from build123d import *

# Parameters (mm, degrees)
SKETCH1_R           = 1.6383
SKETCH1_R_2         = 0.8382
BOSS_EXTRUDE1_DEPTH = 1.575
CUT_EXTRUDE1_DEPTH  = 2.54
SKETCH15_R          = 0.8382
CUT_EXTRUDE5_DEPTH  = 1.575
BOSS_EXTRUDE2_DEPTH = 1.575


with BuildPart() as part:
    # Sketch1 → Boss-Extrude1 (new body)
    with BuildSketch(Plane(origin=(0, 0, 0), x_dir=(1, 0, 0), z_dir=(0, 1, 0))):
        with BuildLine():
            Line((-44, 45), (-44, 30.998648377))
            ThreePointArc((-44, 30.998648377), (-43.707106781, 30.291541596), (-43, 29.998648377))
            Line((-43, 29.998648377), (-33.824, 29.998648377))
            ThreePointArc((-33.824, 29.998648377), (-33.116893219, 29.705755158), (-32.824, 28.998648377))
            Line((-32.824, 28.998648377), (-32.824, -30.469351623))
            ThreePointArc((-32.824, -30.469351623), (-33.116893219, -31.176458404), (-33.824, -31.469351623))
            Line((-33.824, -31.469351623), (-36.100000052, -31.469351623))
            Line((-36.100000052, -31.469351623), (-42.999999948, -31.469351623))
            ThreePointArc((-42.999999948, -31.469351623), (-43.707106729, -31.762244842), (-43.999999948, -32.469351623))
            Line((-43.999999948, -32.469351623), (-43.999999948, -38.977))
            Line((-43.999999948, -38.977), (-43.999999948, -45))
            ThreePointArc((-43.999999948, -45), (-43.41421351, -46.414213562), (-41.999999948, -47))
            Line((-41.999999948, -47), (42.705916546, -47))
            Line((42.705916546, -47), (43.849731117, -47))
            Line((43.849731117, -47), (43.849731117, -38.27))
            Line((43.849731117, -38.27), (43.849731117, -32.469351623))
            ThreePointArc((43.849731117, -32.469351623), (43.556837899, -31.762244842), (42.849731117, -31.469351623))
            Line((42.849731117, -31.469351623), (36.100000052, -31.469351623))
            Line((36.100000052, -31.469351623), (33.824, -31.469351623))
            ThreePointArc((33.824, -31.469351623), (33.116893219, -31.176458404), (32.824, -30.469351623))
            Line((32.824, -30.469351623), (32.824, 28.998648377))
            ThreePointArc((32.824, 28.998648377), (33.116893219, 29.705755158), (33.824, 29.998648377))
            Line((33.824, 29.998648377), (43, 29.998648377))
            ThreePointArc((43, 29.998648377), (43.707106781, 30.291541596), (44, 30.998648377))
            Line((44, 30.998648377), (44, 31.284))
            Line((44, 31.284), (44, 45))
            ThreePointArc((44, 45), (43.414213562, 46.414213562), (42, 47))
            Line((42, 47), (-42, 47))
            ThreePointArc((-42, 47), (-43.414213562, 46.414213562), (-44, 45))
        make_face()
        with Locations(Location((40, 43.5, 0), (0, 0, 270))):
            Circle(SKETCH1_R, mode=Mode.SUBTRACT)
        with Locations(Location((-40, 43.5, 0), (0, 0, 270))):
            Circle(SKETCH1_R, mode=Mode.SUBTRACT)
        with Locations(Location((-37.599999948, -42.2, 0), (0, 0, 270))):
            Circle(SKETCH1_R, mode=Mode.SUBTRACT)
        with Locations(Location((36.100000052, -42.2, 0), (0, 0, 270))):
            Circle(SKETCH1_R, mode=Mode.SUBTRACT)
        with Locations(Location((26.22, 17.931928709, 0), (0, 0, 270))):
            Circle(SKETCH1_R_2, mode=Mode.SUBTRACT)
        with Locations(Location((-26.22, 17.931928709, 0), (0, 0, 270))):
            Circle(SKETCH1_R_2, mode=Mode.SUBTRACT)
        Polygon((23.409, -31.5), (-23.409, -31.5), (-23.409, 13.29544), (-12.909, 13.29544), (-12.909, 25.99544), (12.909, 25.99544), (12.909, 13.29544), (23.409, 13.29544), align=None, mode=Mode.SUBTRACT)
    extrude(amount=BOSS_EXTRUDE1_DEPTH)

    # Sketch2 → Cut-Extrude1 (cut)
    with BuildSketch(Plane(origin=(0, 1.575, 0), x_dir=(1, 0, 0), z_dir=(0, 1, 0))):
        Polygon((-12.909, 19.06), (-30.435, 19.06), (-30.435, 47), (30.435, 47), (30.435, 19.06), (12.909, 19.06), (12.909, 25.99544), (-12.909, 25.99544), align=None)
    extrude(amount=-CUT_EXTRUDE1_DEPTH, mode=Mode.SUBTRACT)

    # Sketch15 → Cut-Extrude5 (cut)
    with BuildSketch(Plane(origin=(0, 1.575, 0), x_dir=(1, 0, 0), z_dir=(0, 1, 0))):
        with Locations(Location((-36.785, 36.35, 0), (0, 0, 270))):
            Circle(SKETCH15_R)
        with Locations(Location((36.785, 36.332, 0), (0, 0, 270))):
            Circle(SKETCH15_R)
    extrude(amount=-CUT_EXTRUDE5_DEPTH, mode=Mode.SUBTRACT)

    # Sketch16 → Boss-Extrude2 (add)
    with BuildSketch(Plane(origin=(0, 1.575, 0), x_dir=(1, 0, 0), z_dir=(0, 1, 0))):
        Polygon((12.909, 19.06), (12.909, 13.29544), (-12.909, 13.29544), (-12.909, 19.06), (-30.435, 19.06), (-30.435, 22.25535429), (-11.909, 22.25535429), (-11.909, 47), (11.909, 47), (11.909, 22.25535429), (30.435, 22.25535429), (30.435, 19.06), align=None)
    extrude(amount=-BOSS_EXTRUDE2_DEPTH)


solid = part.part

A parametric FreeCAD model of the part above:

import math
import FreeCAD as App
import Part
import Sketcher
Q = App.Units.Quantity


def add_polygon(sketch, points):
    """Adds a closed chain of lines whose ends are joined by coincident constraints."""
    first, n = sketch.GeometryCount, len(points)
    for a, b in zip(points, points[1:] + points[:1]):
        sketch.addGeometry(Part.LineSegment(App.Vector(*a, 0), App.Vector(*b, 0)), False)
    for i in range(n):
        sketch.addConstraint(Sketcher.Constraint("Coincident", first + i, 2, first + (i + 1) % n, 1))

doc = App.newDocument("Part")
params = doc.addObject("Spreadsheet::Sheet", "Params")
for row, (alias, value) in enumerate([
    ("sketch1_diameter", "0.129 in"),
    ("sketch1_diameter2", "0.066 in"),
    ("sketch1_height", "0.5 in"),
    ("pad1_length", "1.575 mm"),
    ("sketch2_height", "1.1 in"),
    ("sketch2_width", "0.69 in"),
    ("pocket1_length", "0.1 in"),
    ("sketch3_diameter", "0.066 in"),
    ("pocket2_length", "1.575 mm"),
    ("sketch4_width", "0.69 in"),
    ("pad2_length", "1.575 mm"),
], start=1):
    params.set(f"A{row}", alias)
    params.set(f"B{row}", "=" + value)
    params.setAlias(f"B{row}", alias)

body = doc.addObject("PartDesign::Body", "Body")

sketch1 = body.newObject("Sketcher::SketchObject", "Sketch")
sketch1.AttachmentSupport = (doc.getObject("XZ_Plane"), [""])
sketch1.MapMode = "FlatFace"
sketch1.addGeometry(Part.LineSegment(App.Vector(-44, -45, 0), App.Vector(-44, -31, 0)), False)
sketch1.addGeometry(Part.ArcOfCircle(Part.Circle(App.Vector(-43, -31, 0), App.Vector(0, 0, 1), 1), math.radians(90), math.radians(180)), False)
sketch1.addGeometry(Part.LineSegment(App.Vector(-43, -30, 0), App.Vector(-33.8, -30, 0)), False)
sketch1.addGeometry(Part.ArcOfCircle(Part.Circle(App.Vector(-33.8, -29, 0), App.Vector(0, 0, 1), 1), math.radians(-90), math.radians(0)), False)
sketch1.addGeometry(Part.LineSegment(App.Vector(-32.8, -29, 0), App.Vector(-32.8, 30.5, 0)), False)
sketch1.addGeometry(Part.ArcOfCircle(Part.Circle(App.Vector(-33.8, 30.5, 0), App.Vector(0, 0, 1), 1), math.radians(0), math.radians(90)), False)
sketch1.addGeometry(Part.LineSegment(App.Vector(-33.8, 31.5, 0), App.Vector(-43, 31.5, 0)), False)
sketch1.addGeometry(Part.ArcOfCircle(Part.Circle(App.Vector(-43, 32.5, 0), App.Vector(0, 0, 1), 1), math.radians(-180), math.radians(-90)), False)
sketch1.addGeometry(Part.LineSegment(App.Vector(-44, 32.5, 0), App.Vector(-44, 45, 0)), False)
sketch1.addGeometry(Part.ArcOfCircle(Part.Circle(App.Vector(-42, 45, 0), App.Vector(0, 0, 1), 2), math.radians(90), math.radians(180)), False)
sketch1.addGeometry(Part.LineSegment(App.Vector(-42, 47, 0), App.Vector(43.8, 47, 0)), False)
sketch1.addGeometry(Part.LineSegment(App.Vector(43.8, 47, 0), App.Vector(43.8, 32.5, 0)), False)
sketch1.addGeometry(Part.ArcOfCircle(Part.Circle(App.Vector(42.8, 32.5, 0), App.Vector(0, 0, 1), 1), math.radians(-90), math.radians(0)), False)
sketch1.addGeometry(Part.LineSegment(App.Vector(42.8, 31.5, 0), App.Vector(33.8, 31.5, 0)), False)
sketch1.addGeometry(Part.ArcOfCircle(Part.Circle(App.Vector(33.8, 30.5, 0), App.Vector(0, 0, 1), 1), math.radians(90), math.radians(180)), False)
sketch1.addGeometry(Part.LineSegment(App.Vector(32.8, 30.5, 0), App.Vector(32.8, -29, 0)), False)
sketch1.addGeometry(Part.ArcOfCircle(Part.Circle(App.Vector(33.8, -29, 0), App.Vector(0, 0, 1), 1), math.radians(-180), math.radians(-90)), False)
sketch1.addGeometry(Part.LineSegment(App.Vector(33.8, -30, 0), App.Vector(43, -30, 0)), False)
sketch1.addGeometry(Part.ArcOfCircle(Part.Circle(App.Vector(43, -31, 0), App.Vector(0, 0, 1), 1), math.radians(0), math.radians(90)), False)
sketch1.addGeometry(Part.LineSegment(App.Vector(44, -31, 0), App.Vector(44, -45, 0)), False)
sketch1.addGeometry(Part.ArcOfCircle(Part.Circle(App.Vector(42, -45, 0), App.Vector(0, 0, 1), 2), math.radians(-90), math.radians(0)), False)
sketch1.addGeometry(Part.LineSegment(App.Vector(42, -47, 0), App.Vector(-42, -47, 0)), False)
sketch1.addGeometry(Part.ArcOfCircle(Part.Circle(App.Vector(-42, -45, 0), App.Vector(0, 0, 1), 2), math.radians(-180), math.radians(-90)), False)
sketch1.addGeometry(Part.Circle(App.Vector(-37.6, 42.2, 0), App.Vector(0, 0, 1), 1.6), False)
sketch1.addGeometry(Part.Circle(App.Vector(36.1, 42.2, 0), App.Vector(0, 0, 1), 1.6), False)
add_polygon(sketch1, [(23.4, -13.3), (23.4, 31.5), (-23.4, 31.5), (-23.4, -13.3), (-12.9, -13.3), (-12.9, -26), (12.9, -26), (12.9, -13.3)])
sketch1.addGeometry(Part.Circle(App.Vector(-26.2, -17.9, 0), App.Vector(0, 0, 1), 0.8), False)
sketch1.addGeometry(Part.Circle(App.Vector(-40, -43.5, 0), App.Vector(0, 0, 1), 1.6), False)
sketch1.addGeometry(Part.Circle(App.Vector(26.2, -17.9, 0), App.Vector(0, 0, 1), 0.8), False)
sketch1.addGeometry(Part.Circle(App.Vector(40, -43.5, 0), App.Vector(0, 0, 1), 1.6), False)
sketch1.addConstraint([
    Sketcher.Constraint("Tangent", 0, 2, 1, 2),
    Sketcher.Constraint("Tangent", 1, 1, 2, 1),
    Sketcher.Constraint("Tangent", 2, 2, 3, 1),
    Sketcher.Constraint("Tangent", 3, 2, 4, 1),
    Sketcher.Constraint("Tangent", 4, 2, 5, 1),
    Sketcher.Constraint("Tangent", 5, 2, 6, 1),
    Sketcher.Constraint("Tangent", 6, 2, 7, 2),
    Sketcher.Constraint("Tangent", 7, 1, 8, 1),
    Sketcher.Constraint("Tangent", 8, 2, 9, 2),
    Sketcher.Constraint("Tangent", 9, 1, 10, 1),
    Sketcher.Constraint("Coincident", 10, 2, 11, 1),
    Sketcher.Constraint("Tangent", 11, 2, 12, 2),
    Sketcher.Constraint("Tangent", 12, 1, 13, 1),
    Sketcher.Constraint("Tangent", 13, 2, 14, 1),
    Sketcher.Constraint("Tangent", 14, 2, 15, 1),
    Sketcher.Constraint("Tangent", 15, 2, 16, 1),
    Sketcher.Constraint("Tangent", 16, 2, 17, 1),
    Sketcher.Constraint("Tangent", 17, 2, 18, 2),
    Sketcher.Constraint("Tangent", 18, 1, 19, 1),
    Sketcher.Constraint("Tangent", 19, 2, 20, 2),
    Sketcher.Constraint("Tangent", 20, 1, 21, 1),
    Sketcher.Constraint("Tangent", 21, 2, 22, 2),
    Sketcher.Constraint("Tangent", 22, 1, 0, 1),
    Sketcher.Constraint("Vertical", 0),
    Sketcher.Constraint("Horizontal", 2),
    Sketcher.Constraint("Vertical", 4),
    Sketcher.Constraint("Horizontal", 6),
    Sketcher.Constraint("Vertical", 8),
    Sketcher.Constraint("Horizontal", 10),
    Sketcher.Constraint("Vertical", 11),
    Sketcher.Constraint("Horizontal", 13),
    Sketcher.Constraint("Vertical", 15),
    Sketcher.Constraint("Horizontal", 17),
    Sketcher.Constraint("Vertical", 19),
    Sketcher.Constraint("Horizontal", 21),
    Sketcher.Constraint("Vertical", 25),
    Sketcher.Constraint("Horizontal", 26),
    Sketcher.Constraint("Vertical", 27),
    Sketcher.Constraint("Horizontal", 28),
    Sketcher.Constraint("Vertical", 29),
    Sketcher.Constraint("Horizontal", 30),
    Sketcher.Constraint("Vertical", 31),
    Sketcher.Constraint("Horizontal", 32),
    Sketcher.Constraint("Equal", 1, 3),
    Sketcher.Constraint("Equal", 3, 5),
    Sketcher.Constraint("Equal", 5, 7),
    Sketcher.Constraint("Equal", 7, 12),
    Sketcher.Constraint("Equal", 12, 14),
    Sketcher.Constraint("Equal", 14, 16),
    Sketcher.Constraint("Equal", 16, 18),
    Sketcher.Constraint("Equal", 9, 20),
    Sketcher.Constraint("Equal", 20, 22),
    Sketcher.Constraint("Equal", 23, 24),
    Sketcher.Constraint("Equal", 24, 34),
    Sketcher.Constraint("Equal", 33, 35),
    Sketcher.Constraint("Equal", 34, 36),
    Sketcher.Constraint("Symmetric", 9, 3, 20, 3, -1, 1),
    Sketcher.Constraint("Symmetric", 5, 3, 14, 3, -2),
    Sketcher.Constraint("Symmetric", 1, 3, 18, 3, -2),
    Sketcher.Constraint("Symmetric", 33, 3, 35, 3, -2),
    Sketcher.Constraint("Symmetric", 34, 3, 36, 3, -2),
    Sketcher.Constraint("Symmetric", 28, 2, 31, 2, -2),
    Sketcher.Constraint("Horizontal", 23, 3, 24, 3),
    Sketcher.Constraint("Equal", 28, 32),
    Sketcher.Constraint("Diameter", 23, Q("0.129 in")),
    Sketcher.Constraint("Diameter", 33, Q("0.066 in")),
    Sketcher.Constraint("DistanceY", 29, 2, 29, 1, Q("0.5 in")),
    Sketcher.Constraint("DistanceX", 0, 2, 33, 3, Q("0.7 in")),
    Sketcher.Constraint("Radius", 1, Q("1 mm")),
    Sketcher.Constraint("Radius", 9, Q("2 mm")),
    Sketcher.Constraint("DistanceY", 1, 3, 5, 3, Q("2.42 in")),
    Sketcher.Constraint("DistanceX", 0, 2, 3, 2, Q("0.44 in")),
    Sketcher.Constraint("DistanceY", 25, 1, 25, 2, Q("1.7636 in")),
    Sketcher.Constraint("DistanceX", 21, 2, 21, 1, Q("84 mm")),
    Sketcher.Constraint("DistanceX", 26, 2, 26, 1, Q("46.818 mm")),
    Sketcher.Constraint("DistanceX", 28, 1, 28, 2, Q("10.5 mm")),
    Sketcher.Constraint("DistanceX", 10, 1, 10, 2, Q("85.849731 mm")),
    Sketcher.Constraint("DistanceY", 0, 1, 0, 2, Q("14.001352 mm")),
    Sketcher.Constraint("DistanceY", 8, 1, 8, 2, Q("12.530648 mm")),
    Sketcher.Constraint("DistanceX", 23, 3, -1, 1, Q("37.6 mm")),
    Sketcher.Constraint("DistanceY", -1, 1, 23, 3, Q("42.2 mm")),
    Sketcher.Constraint("DistanceX", -1, 1, 24, 3, Q("36.1 mm")),
    Sketcher.Constraint("DistanceX", 34, 3, -1, 1, Q("40 mm")),
    Sketcher.Constraint("DistanceY", 34, 3, -1, 1, Q("43.5 mm")),
    Sketcher.Constraint("DistanceY", -1, 1, 25, 2, Q("31.5 mm")),
    Sketcher.Constraint("DistanceY", 33, 3, -1, 1, Q("17.931929 mm")),
])
sketch1.setExpression("Constraints[72]", "Params.sketch1_diameter")
sketch1.setExpression("Constraints[73]", "Params.sketch1_diameter2")
sketch1.setExpression("Constraints[74]", "Params.sketch1_height")
pad1 = body.newObject("PartDesign::Pad", "Pad")
pad1.Profile = sketch1
pad1.setExpression("Length", "Params.pad1_length")
pad1.Reversed = True

sketch2 = body.newObject("Sketcher::SketchObject", "Sketch001")
sketch2.AttachmentSupport = (doc.getObject("XZ_Plane"), [""])
sketch2.MapMode = "FlatFace"
sketch2.AttachmentOffset = App.Placement(App.Vector(0, 0, -1.575), App.Rotation())
add_polygon(sketch2, [(-30, -19), (-13, -19), (-13, -26), (13, -26), (13, -19), (30, -19), (30, -47), (-30, -47)])
sketch2.addConstraint([
    Sketcher.Constraint("Horizontal", 0),
    Sketcher.Constraint("Vertical", 1),
    Sketcher.Constraint("Horizontal", 2),
    Sketcher.Constraint("Vertical", 3),
    Sketcher.Constraint("Horizontal", 4),
    Sketcher.Constraint("Vertical", 5),
    Sketcher.Constraint("Horizontal", 6),
    Sketcher.Constraint("Vertical", 7),
    Sketcher.Constraint("Symmetric", 0, 2, 3, 2, -2),
    Sketcher.Constraint("Equal", 0, 4),
    Sketcher.Constraint("DistanceY", 5, 2, 5, 1, Q("1.1 in")),
    Sketcher.Constraint("DistanceX", 0, 1, 0, 2, Q("0.69 in")),
    Sketcher.Constraint("DistanceX", 2, 1, 2, 2, Q("25.818 mm")),
    Sketcher.Constraint("DistanceY", 1, 2, 1, 1, Q("6.93544 mm")),
    Sketcher.Constraint("DistanceY", 0, 2, -1, 1, Q("19.06 mm")),
])
sketch2.setExpression("Constraints[18]", "Params.sketch2_height")
sketch2.setExpression("Constraints[19]", "Params.sketch2_width")
pocket1 = body.newObject("PartDesign::Pocket", "Pocket")
pocket1.Profile = sketch2
pocket1.setExpression("Length", "Params.pocket1_length")
pocket1.Reversed = True

sketch3 = body.newObject("Sketcher::SketchObject", "Sketch002")
sketch3.AttachmentSupport = (doc.getObject("XZ_Plane"), [""])
sketch3.MapMode = "FlatFace"
sketch3.AttachmentOffset = App.Placement(App.Vector(0, 0, -1.575), App.Rotation())
sketch3.addGeometry([
    Part.Circle(App.Vector(-36.8, -36.4, 0), App.Vector(0, 0, 1), 0.8),
    Part.Circle(App.Vector(36.8, -36.3, 0), App.Vector(0, 0, 1), 0.8),
], False)
sketch3.addConstraint([
    Sketcher.Constraint("Equal", 0, 1),
    Sketcher.Constraint("Diameter", 0, Q("0.066 in")),
    Sketcher.Constraint("DistanceX", 0, 3, -1, 1, Q("36.785 mm")),
    Sketcher.Constraint("DistanceY", 0, 3, -1, 1, Q("36.35 mm")),
    Sketcher.Constraint("DistanceX", -1, 1, 1, 3, Q("36.785 mm")),
    Sketcher.Constraint("DistanceY", 1, 3, -1, 1, Q("36.332 mm")),
])
sketch3.setExpression("Constraints[1]", "Params.sketch3_diameter")
pocket2 = body.newObject("PartDesign::Pocket", "Pocket001")
pocket2.Profile = sketch3
pocket2.setExpression("Length", "Params.pocket2_length")
pocket2.Reversed = True

sketch4 = body.newObject("Sketcher::SketchObject", "Sketch003")
sketch4.AttachmentSupport = (doc.getObject("XZ_Plane"), [""])
sketch4.MapMode = "FlatFace"
sketch4.AttachmentOffset = App.Placement(App.Vector(0, 0, -1.575), App.Rotation())
add_polygon(sketch4, [(12.9, -13.3), (12.9, -19.1), (30.4, -19.1), (30.4, -22.3), (11.9, -22.3), (11.9, -47), (-11.9, -47), (-11.9, -22.3), (-30.4, -22.3), (-30.4, -19.1), (-12.9, -19.1), (-12.9, -13.3)])
sketch4.addConstraint([
    Sketcher.Constraint("Vertical", 0),
    Sketcher.Constraint("Horizontal", 1),
    Sketcher.Constraint("Vertical", 2),
    Sketcher.Constraint("Horizontal", 3),
    Sketcher.Constraint("Vertical", 4),
    Sketcher.Constraint("Horizontal", 5),
    Sketcher.Constraint("Vertical", 6),
    Sketcher.Constraint("Horizontal", 7),
    Sketcher.Constraint("Vertical", 8),
    Sketcher.Constraint("Horizontal", 9),
    Sketcher.Constraint("Vertical", 10),
    Sketcher.Constraint("Horizontal", 11),
    Sketcher.Constraint("Symmetric", 3, 2, 6, 2, -2),
    Sketcher.Constraint("Symmetric", 1, 2, 8, 2, -2),
    Sketcher.Constraint("Equal", 1, 9),
    Sketcher.Constraint("DistanceX", 1, 1, 1, 2, Q("0.69 in")),
    Sketcher.Constraint("DistanceY", 4, 2, 0, 2, Q("1.1 in")),
    Sketcher.Constraint("DistanceX", 3, 2, 3, 1, Q("18.526 mm")),
    Sketcher.Constraint("DistanceX", 5, 2, 5, 1, Q("23.818 mm")),
    Sketcher.Constraint("DistanceY", 0, 2, 0, 1, Q("5.76456 mm")),
    Sketcher.Constraint("DistanceY", 0, 2, -1, 1, Q("19.06 mm")),
    Sketcher.Constraint("DistanceY", 2, 2, 2, 1, Q("3.195354 mm")),
])
sketch4.setExpression("Constraints[27]", "Params.sketch4_width")
pad2 = body.newObject("PartDesign::Pad", "Pad001")
pad2.Profile = sketch4
pad2.setExpression("Length", "Params.pad2_length")

doc.recompute()
